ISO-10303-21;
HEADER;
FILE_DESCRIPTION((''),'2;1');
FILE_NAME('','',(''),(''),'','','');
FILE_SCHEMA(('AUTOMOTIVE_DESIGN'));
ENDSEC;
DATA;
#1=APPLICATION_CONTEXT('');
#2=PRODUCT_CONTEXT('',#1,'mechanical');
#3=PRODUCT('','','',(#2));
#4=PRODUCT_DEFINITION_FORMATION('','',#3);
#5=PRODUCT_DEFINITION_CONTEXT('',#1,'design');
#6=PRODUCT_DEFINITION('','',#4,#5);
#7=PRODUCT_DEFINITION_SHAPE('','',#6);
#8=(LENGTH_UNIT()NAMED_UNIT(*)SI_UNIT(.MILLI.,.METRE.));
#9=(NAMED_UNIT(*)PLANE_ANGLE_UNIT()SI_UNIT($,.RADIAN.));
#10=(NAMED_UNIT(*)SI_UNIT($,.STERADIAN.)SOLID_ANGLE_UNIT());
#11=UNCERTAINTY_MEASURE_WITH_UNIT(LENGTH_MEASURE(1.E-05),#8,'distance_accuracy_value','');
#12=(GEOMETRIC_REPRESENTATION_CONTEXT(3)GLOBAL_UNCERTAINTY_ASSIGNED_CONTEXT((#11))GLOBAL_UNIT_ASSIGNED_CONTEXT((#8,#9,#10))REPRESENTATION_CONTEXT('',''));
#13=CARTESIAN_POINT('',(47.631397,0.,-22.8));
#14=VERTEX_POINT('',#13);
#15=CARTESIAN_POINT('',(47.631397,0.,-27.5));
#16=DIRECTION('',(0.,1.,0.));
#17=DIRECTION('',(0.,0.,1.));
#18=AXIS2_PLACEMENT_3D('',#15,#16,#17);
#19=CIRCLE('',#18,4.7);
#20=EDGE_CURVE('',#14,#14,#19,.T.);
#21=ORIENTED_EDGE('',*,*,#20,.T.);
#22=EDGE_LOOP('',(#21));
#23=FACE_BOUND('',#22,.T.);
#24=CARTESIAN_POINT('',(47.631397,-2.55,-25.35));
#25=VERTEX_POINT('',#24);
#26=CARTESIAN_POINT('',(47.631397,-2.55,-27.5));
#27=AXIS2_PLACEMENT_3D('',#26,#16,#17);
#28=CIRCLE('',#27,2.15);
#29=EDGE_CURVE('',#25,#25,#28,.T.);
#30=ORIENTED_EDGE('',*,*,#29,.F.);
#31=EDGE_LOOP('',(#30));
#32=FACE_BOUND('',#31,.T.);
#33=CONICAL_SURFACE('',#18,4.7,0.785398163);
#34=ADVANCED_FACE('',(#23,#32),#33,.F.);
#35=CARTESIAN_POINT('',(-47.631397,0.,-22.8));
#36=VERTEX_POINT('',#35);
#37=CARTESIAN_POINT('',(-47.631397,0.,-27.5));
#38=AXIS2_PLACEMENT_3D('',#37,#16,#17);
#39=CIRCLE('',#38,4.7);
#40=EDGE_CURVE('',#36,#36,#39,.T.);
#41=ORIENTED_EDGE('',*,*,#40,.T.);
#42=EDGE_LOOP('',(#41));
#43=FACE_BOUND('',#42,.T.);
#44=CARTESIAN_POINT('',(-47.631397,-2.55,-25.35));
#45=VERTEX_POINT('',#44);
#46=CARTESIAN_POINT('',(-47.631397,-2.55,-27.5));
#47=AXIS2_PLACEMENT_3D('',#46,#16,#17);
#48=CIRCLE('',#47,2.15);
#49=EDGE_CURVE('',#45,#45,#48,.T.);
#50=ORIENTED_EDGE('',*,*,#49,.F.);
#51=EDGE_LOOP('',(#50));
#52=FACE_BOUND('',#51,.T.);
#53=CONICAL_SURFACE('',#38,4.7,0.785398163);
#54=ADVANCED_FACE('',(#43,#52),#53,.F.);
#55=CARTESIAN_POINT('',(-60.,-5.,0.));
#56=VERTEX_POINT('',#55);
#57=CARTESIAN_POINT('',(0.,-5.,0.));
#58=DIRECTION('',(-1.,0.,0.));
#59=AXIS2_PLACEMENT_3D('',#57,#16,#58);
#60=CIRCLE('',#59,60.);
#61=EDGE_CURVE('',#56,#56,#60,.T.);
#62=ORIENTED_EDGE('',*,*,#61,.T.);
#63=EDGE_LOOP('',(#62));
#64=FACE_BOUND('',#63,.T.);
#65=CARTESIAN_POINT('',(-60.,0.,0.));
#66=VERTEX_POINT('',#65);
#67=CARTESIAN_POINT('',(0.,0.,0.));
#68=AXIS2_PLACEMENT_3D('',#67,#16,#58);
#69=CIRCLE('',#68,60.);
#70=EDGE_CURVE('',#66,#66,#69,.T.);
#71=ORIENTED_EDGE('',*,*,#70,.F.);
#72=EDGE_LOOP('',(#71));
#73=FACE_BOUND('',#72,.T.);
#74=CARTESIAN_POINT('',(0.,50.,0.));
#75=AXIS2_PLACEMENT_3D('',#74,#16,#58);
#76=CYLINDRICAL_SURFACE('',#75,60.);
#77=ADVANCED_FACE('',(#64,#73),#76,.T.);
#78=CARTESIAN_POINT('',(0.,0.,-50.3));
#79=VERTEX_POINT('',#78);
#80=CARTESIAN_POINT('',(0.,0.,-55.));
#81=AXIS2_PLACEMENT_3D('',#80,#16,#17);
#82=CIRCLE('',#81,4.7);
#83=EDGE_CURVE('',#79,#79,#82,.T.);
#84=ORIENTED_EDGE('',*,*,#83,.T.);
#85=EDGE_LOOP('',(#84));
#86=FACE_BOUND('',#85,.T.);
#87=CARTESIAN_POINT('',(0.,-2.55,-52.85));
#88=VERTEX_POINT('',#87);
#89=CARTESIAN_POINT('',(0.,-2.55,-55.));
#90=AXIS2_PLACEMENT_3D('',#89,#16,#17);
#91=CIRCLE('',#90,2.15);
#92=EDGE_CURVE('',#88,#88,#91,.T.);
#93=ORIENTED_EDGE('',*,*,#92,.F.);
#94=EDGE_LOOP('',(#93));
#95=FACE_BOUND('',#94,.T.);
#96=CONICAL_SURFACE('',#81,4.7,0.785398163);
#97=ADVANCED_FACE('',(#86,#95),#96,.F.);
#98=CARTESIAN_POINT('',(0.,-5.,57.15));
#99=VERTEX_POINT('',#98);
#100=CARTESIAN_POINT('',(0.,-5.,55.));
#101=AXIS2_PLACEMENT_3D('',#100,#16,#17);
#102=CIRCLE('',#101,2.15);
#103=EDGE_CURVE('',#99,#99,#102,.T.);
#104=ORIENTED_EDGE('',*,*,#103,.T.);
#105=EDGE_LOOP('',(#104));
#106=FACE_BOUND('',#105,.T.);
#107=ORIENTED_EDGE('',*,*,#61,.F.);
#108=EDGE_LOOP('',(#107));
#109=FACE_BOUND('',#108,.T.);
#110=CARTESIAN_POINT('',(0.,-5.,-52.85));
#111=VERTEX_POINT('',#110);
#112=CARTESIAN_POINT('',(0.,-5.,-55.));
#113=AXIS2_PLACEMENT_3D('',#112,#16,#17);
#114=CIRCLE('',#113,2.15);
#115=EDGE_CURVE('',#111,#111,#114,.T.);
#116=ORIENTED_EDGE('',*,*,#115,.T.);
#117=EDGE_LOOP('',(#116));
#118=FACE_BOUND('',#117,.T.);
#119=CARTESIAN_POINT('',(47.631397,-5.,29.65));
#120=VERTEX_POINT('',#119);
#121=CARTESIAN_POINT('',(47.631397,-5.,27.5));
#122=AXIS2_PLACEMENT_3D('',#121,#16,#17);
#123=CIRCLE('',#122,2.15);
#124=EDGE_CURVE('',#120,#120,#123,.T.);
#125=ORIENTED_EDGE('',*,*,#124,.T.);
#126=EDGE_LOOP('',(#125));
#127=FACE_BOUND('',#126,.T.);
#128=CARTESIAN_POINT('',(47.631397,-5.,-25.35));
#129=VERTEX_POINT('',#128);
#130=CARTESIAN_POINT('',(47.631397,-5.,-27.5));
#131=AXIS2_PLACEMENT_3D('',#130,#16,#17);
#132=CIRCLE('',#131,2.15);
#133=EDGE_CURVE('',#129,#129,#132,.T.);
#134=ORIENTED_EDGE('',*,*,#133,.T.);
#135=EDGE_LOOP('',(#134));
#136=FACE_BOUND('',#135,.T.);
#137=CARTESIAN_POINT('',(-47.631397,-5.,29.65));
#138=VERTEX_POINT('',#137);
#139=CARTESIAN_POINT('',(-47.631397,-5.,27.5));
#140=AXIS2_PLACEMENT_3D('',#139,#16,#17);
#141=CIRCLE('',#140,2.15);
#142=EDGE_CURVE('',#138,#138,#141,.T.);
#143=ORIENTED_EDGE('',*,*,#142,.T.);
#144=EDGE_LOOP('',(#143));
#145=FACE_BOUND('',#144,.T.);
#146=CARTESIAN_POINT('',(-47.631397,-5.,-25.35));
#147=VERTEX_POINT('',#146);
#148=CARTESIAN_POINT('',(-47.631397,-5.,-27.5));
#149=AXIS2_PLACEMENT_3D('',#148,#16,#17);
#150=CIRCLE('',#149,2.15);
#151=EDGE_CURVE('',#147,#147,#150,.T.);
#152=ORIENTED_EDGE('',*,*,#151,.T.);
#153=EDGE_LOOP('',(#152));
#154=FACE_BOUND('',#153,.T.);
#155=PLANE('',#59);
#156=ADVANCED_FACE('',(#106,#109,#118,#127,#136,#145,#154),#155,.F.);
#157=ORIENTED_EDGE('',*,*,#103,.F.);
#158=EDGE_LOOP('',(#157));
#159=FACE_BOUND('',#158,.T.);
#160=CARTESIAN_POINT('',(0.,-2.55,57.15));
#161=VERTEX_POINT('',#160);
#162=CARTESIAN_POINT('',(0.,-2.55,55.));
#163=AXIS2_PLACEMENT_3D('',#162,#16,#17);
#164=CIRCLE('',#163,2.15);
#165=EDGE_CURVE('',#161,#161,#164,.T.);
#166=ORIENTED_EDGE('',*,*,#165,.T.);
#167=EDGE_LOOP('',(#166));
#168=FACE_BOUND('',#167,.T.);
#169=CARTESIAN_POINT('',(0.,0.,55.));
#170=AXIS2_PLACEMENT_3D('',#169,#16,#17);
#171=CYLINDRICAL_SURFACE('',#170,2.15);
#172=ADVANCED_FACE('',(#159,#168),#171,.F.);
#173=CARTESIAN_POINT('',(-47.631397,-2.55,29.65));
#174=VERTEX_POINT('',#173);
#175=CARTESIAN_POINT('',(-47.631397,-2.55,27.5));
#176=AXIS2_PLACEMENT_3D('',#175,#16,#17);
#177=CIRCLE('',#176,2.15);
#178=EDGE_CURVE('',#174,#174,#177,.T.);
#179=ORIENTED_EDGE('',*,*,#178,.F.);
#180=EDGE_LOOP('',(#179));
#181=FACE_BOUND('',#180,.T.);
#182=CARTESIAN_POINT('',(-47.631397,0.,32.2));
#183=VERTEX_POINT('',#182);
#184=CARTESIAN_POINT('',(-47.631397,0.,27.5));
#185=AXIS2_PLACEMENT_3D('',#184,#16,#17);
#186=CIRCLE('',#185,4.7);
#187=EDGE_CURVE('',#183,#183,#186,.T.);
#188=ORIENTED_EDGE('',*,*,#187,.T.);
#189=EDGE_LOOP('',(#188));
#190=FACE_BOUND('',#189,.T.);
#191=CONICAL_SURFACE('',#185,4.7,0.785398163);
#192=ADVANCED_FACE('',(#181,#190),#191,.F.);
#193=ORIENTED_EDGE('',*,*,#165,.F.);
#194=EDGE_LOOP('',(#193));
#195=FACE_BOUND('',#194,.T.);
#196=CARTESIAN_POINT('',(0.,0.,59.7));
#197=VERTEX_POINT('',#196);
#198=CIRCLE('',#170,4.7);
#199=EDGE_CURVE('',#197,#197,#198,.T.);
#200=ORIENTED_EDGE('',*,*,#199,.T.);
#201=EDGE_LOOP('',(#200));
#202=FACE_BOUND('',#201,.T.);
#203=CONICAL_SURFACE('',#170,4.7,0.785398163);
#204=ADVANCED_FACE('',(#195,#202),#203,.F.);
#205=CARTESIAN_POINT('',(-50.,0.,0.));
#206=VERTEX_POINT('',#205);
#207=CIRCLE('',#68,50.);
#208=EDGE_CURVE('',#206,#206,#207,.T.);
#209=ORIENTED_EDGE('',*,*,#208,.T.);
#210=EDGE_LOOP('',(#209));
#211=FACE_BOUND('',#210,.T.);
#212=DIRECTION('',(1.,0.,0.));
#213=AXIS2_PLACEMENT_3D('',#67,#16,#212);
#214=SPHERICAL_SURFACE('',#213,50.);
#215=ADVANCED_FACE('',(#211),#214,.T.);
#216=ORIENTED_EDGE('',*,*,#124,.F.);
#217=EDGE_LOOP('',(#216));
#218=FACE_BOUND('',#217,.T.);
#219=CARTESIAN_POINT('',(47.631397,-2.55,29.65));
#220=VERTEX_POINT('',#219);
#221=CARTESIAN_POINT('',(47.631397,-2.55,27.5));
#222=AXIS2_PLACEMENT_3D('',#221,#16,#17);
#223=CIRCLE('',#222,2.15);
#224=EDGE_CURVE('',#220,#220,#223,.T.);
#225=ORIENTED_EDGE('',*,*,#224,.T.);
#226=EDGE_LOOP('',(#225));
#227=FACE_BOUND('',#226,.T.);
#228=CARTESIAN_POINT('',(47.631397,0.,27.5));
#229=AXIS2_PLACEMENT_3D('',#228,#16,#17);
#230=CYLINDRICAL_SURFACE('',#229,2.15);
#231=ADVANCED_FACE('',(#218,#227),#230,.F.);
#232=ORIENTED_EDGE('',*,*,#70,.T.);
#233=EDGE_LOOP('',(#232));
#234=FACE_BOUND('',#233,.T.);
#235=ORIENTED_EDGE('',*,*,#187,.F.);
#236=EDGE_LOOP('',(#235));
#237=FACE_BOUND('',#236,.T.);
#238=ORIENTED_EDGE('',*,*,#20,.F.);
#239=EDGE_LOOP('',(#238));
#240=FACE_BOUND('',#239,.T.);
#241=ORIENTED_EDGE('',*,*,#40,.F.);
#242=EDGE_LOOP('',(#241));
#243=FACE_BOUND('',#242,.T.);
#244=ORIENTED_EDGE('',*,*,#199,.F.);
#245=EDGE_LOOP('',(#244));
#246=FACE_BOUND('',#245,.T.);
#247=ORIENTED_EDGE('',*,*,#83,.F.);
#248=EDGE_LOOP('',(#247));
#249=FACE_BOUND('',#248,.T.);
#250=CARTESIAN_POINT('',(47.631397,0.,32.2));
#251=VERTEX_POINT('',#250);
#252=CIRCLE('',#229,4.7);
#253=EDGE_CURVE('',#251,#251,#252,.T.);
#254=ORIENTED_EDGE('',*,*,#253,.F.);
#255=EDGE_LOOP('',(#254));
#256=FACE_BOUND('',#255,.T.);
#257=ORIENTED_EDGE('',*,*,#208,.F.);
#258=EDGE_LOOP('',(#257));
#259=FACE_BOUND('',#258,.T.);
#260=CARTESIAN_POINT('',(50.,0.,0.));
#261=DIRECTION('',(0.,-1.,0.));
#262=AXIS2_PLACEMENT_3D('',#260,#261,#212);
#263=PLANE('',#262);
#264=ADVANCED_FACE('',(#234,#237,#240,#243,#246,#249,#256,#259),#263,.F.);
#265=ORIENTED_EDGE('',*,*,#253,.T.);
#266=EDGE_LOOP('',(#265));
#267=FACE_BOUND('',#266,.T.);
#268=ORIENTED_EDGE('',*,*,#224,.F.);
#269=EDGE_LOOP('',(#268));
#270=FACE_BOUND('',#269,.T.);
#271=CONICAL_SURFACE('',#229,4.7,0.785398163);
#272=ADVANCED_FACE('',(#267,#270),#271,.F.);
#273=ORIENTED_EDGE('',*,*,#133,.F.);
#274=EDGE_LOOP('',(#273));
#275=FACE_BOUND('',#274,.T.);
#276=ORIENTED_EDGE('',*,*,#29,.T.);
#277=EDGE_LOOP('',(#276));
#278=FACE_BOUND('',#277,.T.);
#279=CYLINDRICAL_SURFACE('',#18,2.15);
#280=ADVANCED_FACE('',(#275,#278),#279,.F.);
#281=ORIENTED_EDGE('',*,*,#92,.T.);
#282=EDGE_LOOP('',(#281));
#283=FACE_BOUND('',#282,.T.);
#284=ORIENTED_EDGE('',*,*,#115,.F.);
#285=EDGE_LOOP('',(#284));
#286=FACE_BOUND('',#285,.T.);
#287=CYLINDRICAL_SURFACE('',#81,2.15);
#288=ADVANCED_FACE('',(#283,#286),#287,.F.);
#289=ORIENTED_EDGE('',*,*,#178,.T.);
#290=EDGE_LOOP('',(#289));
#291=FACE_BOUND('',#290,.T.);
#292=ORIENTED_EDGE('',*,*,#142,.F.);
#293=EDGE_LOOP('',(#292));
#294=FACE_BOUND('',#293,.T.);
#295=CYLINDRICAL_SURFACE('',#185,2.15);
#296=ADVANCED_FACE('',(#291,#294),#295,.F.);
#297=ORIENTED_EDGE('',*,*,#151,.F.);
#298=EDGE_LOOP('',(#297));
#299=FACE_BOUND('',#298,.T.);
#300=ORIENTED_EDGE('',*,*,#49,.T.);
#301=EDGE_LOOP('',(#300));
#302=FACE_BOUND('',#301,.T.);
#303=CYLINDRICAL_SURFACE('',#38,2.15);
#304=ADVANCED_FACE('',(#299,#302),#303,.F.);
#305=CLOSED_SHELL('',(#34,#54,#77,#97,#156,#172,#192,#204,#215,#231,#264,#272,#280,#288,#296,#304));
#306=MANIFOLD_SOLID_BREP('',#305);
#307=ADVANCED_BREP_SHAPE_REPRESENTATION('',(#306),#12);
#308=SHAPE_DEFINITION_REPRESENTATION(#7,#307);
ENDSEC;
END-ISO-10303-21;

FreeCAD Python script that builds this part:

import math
import FreeCAD as App
import Part
import Sketcher
from FreeCAD import Vector

doc = App.newDocument("Part")
body = doc.addObject("PartDesign::Body", "Body")

sketch1 = body.newObject("Sketcher::SketchObject", "Sketch")
sketch1.AttachmentSupport = (doc.getObject("XY_Plane"), [""])
sketch1.MapMode = "FlatFace"
sketch1.addGeometry([
    Part.LineSegment(Vector(0, -5, 0), Vector(60, -5, 0)),
    Part.LineSegment(Vector(60, -5, 0), Vector(60, 0, 0)),
    Part.LineSegment(Vector(60, 0, 0), Vector(50, 0, 0)),
    Part.ArcOfCircle(Part.Circle(Vector(0, 0, 0), Vector(0, 0, 1), 50), math.radians(0), math.radians(90)),
    Part.LineSegment(Vector(0, 50, 0), Vector(0, -5, 0)),
], False)
sketch1.addConstraint([
    Sketcher.Constraint("Coincident", 0, 2, 1, 1),
    Sketcher.Constraint("Coincident", 1, 2, 2, 1),
    Sketcher.Constraint("Coincident", 2, 2, 3, 1),
    Sketcher.Constraint("Coincident", 3, 2, 4, 1),
    Sketcher.Constraint("Coincident", 4, 2, 0, 1),
    Sketcher.Constraint("Horizontal", 0),
    Sketcher.Constraint("Vertical", 1),
    Sketcher.Constraint("Horizontal", 2),
    Sketcher.Constraint("Vertical", 4),
    Sketcher.Constraint("Coincident", 3, 3, -1, 1),
    Sketcher.Constraint("PointOnObject", 1, 2, -1),
    Sketcher.Constraint("PointOnObject", 3, 2, -2),
    Sketcher.Constraint("Radius", 3, 50.0),
    Sketcher.Constraint("DistanceX", 0, 1, 0, 2, 60.0),
    Sketcher.Constraint("DistanceY", 1, 1, 1, 2, 5.0),
])
revolution = body.newObject("PartDesign::Revolution", "Revolution")
revolution.Profile = sketch1
revolution.ReferenceAxis = (sketch1, ["V_Axis"])
revolution.Angle = 360

sketch2 = body.newObject("Sketcher::SketchObject", "Sketch001")
sketch2.AttachmentSupport = (doc.getObject("XZ_Plane"), [""])
sketch2.MapMode = "FlatFace"
sketch2.addGeometry(Part.Circle(Vector(0, -55, 0), Vector(0, 0, 1), 2.15), False)
sketch2.addConstraint([
    Sketcher.Constraint("PointOnObject", 0, 3, -2),
    Sketcher.Constraint("Diameter", 0, 4.3),
    Sketcher.Constraint("DistanceY", 0, 3, -1, 1, 55.0),
])
doc.recompute()
hole = body.newObject("PartDesign::Hole", "Hole")
hole.Profile = sketch2
hole.ThreadType = "None"
hole.Diameter = 4.3
hole.DepthType = "ThroughAll"
hole.HoleCutType = "Countersink"
hole.HoleCutDiameter = 9.4
hole.HoleCutCountersinkAngle = 90
hole.Reversed = True
doc.recompute()

polarpattern = body.newObject("PartDesign::PolarPattern", "PolarPattern")
polarpattern.Originals = [hole]
polarpattern.Axis = (doc.getObject("Y_Axis"), [""])
polarpattern.Angle = 360
polarpattern.Occurrences = 6
body.Tip = polarpattern

doc.recompute()
